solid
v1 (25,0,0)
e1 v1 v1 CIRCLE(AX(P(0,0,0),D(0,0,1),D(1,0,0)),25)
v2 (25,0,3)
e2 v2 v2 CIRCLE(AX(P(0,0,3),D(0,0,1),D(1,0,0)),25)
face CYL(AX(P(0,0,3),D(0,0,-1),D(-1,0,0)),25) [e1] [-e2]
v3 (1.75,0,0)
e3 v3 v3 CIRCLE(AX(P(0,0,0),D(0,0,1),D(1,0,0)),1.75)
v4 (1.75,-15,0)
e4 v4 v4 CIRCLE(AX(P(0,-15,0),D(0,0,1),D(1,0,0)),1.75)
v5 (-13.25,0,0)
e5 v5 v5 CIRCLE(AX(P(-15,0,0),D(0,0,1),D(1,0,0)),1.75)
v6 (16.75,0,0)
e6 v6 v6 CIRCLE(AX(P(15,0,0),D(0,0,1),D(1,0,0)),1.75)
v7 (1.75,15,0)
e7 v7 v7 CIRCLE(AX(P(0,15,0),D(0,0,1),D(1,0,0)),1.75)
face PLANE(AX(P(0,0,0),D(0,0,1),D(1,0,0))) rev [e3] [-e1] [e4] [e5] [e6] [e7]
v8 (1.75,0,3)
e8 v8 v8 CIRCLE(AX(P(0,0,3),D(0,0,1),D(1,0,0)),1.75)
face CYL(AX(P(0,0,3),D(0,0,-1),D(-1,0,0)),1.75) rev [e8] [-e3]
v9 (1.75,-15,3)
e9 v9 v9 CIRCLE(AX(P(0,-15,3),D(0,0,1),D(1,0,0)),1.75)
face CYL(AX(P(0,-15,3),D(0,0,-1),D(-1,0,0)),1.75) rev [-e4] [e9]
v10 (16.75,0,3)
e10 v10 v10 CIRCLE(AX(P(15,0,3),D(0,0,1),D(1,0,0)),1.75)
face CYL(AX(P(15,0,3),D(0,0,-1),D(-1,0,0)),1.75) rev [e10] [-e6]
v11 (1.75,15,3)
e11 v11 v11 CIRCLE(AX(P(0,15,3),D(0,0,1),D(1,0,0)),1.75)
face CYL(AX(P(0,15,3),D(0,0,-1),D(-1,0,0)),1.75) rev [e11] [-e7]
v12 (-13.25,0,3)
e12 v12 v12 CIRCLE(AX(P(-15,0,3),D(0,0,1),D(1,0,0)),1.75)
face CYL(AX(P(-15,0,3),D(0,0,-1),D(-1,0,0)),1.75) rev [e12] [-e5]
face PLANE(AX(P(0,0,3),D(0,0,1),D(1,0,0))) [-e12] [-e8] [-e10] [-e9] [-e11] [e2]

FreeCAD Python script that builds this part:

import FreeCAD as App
import Part
import Sketcher

doc = App.newDocument("Part")
params = doc.addObject("Spreadsheet::Sheet", "Params")
for row, (alias, value) in enumerate([
    ("sketch1_diameter", "50 mm"),
    ("sketch1_diameter2", "3.5 mm"),
    ("pad1_length", "3 mm"),
], start=1):
    params.set(f"A{row}", alias)
    params.set(f"B{row}", "=" + value)
    params.setAlias(f"B{row}", alias)

body = doc.addObject("PartDesign::Body", "Body")

sketch1 = doc.addObject("Sketcher::SketchObject", "Sketch")
body.addObject(sketch1)
sketch1.AttachmentSupport = (doc.XY_Plane, [""])
sketch1.MapMode = "FlatFace"
sketch1.addGeometry([
    Part.Circle(App.Vector(0, 0, 0), App.Vector(0, 0, 1), 25),
    Part.Circle(App.Vector(0, -15, 0), App.Vector(0, 0, 1), 1.8),
    Part.Circle(App.Vector(-15, 0, 0), App.Vector(0, 0, 1), 1.8),
    Part.Circle(App.Vector(0, 0, 0), App.Vector(0, 0, 1), 1.8),
    Part.Circle(App.Vector(15, 0, 0), App.Vector(0, 0, 1), 1.8),
    Part.Circle(App.Vector(0, 15, 0), App.Vector(0, 0, 1), 1.8),
], False)
sketch1.addConstraint([
    Sketcher.Constraint("Coincident", 0, 3, -1, 1),
    Sketcher.Constraint("Coincident", 3, 3, -1, 1),
    Sketcher.Constraint("Equal", 1, 2),
    Sketcher.Constraint("Equal", 2, 3),
    Sketcher.Constraint("Equal", 3, 4),
    Sketcher.Constraint("Equal", 4, 5),
    Sketcher.Constraint("Symmetric", 2, 3, 4, 3, -1, 1),
    Sketcher.Constraint("Symmetric", 1, 3, 5, 3, -1, 1),
    Sketcher.Constraint("PointOnObject", 1, 3, -2),
    Sketcher.Constraint("PointOnObject", 2, 3, -1),
    Sketcher.Constraint("Diameter", 0, 50.0),
    Sketcher.Constraint("Diameter", 1, 3.5),
    Sketcher.Constraint("DistanceY", 1, 3, -1, 1, 15.0),
    Sketcher.Constraint("DistanceX", 2, 3, -1, 1, 15.0),
])
sketch1.setExpression("Constraints[10]", "Params.sketch1_diameter")
sketch1.setExpression("Constraints[11]", "Params.sketch1_diameter2")
pad1 = doc.addObject("PartDesign::Pad", "Pad")
body.addObject(pad1)
pad1.Profile = sketch1
pad1.setExpression("Length", "Params.pad1_length")

doc.recompute()
